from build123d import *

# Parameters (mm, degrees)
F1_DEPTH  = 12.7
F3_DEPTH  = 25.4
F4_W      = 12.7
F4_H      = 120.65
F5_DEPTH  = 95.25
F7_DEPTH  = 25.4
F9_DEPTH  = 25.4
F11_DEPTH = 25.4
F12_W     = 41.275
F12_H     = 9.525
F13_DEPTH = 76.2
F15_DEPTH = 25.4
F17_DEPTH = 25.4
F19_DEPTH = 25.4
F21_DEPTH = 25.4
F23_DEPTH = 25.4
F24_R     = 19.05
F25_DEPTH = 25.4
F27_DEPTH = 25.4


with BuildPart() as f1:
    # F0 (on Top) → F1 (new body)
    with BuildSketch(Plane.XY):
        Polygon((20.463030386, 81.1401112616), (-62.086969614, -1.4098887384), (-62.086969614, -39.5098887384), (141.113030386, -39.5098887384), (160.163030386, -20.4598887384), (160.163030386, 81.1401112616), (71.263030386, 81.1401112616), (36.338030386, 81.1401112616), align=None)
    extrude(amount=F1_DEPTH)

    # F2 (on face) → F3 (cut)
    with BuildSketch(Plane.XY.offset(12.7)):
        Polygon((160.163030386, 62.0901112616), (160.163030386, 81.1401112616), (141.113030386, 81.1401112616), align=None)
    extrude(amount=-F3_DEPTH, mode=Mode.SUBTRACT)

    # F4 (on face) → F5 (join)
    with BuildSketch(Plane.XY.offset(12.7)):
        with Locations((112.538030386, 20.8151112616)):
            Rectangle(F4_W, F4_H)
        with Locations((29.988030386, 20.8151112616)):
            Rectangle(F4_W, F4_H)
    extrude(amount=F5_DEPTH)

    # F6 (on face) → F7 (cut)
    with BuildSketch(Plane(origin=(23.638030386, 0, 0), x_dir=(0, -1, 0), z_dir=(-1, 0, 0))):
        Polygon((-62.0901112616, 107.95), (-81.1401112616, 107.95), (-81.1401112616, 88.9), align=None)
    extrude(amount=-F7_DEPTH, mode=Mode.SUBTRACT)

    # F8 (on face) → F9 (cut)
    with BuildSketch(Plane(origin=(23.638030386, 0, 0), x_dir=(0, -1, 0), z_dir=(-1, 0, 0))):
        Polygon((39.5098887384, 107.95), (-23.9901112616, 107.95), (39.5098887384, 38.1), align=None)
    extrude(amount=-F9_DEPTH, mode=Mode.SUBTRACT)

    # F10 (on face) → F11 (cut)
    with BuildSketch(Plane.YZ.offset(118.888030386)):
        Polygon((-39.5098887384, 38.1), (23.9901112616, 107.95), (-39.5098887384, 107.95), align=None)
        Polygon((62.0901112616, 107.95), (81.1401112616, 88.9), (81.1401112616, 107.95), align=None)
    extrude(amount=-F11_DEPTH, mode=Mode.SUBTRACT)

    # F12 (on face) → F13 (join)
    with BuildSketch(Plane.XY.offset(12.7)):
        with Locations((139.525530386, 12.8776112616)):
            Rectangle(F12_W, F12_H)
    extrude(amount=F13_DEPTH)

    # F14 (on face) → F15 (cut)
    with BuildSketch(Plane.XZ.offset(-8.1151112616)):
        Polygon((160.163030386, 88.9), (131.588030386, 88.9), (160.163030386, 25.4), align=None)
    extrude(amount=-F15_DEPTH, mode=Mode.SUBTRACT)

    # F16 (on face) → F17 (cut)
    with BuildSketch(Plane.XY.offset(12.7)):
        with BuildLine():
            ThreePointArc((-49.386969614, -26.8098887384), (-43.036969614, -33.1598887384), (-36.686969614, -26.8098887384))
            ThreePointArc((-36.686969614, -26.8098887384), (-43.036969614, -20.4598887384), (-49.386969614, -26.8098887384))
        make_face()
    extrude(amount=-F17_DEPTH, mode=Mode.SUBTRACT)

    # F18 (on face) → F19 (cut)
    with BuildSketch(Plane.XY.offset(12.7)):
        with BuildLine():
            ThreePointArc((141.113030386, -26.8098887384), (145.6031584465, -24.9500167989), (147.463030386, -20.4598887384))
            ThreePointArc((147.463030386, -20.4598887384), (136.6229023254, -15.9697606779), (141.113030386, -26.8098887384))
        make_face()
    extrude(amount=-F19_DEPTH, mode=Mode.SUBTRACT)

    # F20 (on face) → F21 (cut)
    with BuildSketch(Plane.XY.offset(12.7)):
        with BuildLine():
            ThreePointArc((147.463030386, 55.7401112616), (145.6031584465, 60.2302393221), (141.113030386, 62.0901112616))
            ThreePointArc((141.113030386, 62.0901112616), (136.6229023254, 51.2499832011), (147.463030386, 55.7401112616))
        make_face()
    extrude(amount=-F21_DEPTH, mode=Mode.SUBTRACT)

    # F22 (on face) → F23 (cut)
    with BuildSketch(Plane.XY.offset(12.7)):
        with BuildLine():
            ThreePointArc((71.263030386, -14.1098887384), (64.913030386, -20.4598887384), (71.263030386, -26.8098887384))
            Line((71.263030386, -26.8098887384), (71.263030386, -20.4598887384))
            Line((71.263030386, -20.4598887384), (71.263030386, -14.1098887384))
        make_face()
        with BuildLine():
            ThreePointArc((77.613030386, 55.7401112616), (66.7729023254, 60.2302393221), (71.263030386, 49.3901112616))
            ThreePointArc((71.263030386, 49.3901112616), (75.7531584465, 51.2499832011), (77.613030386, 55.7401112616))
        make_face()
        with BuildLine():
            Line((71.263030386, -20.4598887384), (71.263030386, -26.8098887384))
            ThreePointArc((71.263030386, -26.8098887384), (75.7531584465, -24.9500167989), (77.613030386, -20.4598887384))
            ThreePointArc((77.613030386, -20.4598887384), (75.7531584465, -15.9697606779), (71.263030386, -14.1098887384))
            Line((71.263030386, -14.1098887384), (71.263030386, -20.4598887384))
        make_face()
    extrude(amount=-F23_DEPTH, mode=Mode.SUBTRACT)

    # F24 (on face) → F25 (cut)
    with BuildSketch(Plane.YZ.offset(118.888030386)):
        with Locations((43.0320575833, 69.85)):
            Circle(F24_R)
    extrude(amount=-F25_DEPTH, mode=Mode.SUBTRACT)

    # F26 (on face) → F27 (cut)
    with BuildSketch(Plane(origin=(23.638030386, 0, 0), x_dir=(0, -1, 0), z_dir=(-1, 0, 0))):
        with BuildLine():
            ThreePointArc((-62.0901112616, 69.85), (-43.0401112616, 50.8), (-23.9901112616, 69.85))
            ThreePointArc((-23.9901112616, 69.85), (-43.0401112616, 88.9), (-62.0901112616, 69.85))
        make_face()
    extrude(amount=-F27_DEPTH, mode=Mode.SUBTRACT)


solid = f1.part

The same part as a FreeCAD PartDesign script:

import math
import FreeCAD as App
import Part
import Sketcher
from FreeCAD import Vector
Q = App.Units.Quantity

doc = App.newDocument("Part")
params = doc.addObject("Spreadsheet::Sheet", "Params")
for row, (alias, value) in enumerate([
    ("sketch1_width", "8 in"),
    ("sketch1_height", "4 in"),
    ("sketch1_width2", "5.5 in"),
    ("sketch1_height2", "1.5 in"),
    ("pad1_length", "0.5 in"),
    ("sketch2_width", "0.75 in"),
    ("pocket1_length", "1 in"),
    ("sketch3_width", "0.5 in"),
    ("sketch3_height", "4.75 in"),
    ("pad2_length", "3.75 in"),
    ("sketch4_width", "0.75 in"),
    ("pocket2_length", "1 in"),
    ("sketch5_width", "2.5 in"),
    ("sketch5_height", "2.75 in"),
    ("pocket3_length", "1 in"),
    ("sketch6_width", "2.5 in"),
    ("sketch6_width2", "0.75 in"),
    ("pocket4_length", "1 in"),
    ("sketch7_width", "1.625 in"),
    ("sketch7_height", "0.375 in"),
    ("pad3_length", "3 in"),
    ("sketch8_height", "2.5 in"),
    ("sketch8_width", "1.125 in"),
    ("pocket5_length", "1 in"),
    ("sketch9_diameter", "0.5 in"),
    ("pocket6_length", "1 in"),
    ("sketch10_radius", "0.25 in"),
    ("pocket7_length", "1 in"),
    ("sketch11_radius", "0.25 in"),
    ("pocket8_length", "1 in"),
    ("sketch12_radius", "0.25 in"),
    ("pocket9_length", "1 in"),
    ("sketch13_diameter", "1.5 in"),
    ("pocket10_length", "1 in"),
    ("sketch14_diameter", "1.5 in"),
    ("pocket11_length", "1 in"),
], start=1):
    params.set(f"A{row}", alias)
    params.set(f"B{row}", "=" + value)
    params.setAlias(f"B{row}", alias)

body = doc.addObject("PartDesign::Body", "Body")

# Sketch on XY plane
sketch1 = body.newObject("Sketcher::SketchObject", "Sketch")
sketch1.AttachmentSupport = (doc.getObject("XY_Plane"), [""])
sketch1.MapMode = "FlatFace"
sketch1.addGeometry([
    Part.LineSegment(Vector(20, 81, 0), Vector(-62, -1, 0)),  # 0
    Part.LineSegment(Vector(-62, -1, 0), Vector(-62, -40, 0)),  # 1
    Part.LineSegment(Vector(-62, -40, 0), Vector(141, -40, 0)),  # 2
    Part.LineSegment(Vector(141, -40, 0), Vector(160, -20, 0)),  # 3
    Part.LineSegment(Vector(160, -20, 0), Vector(160, 81, 0)),  # 4
    Part.LineSegment(Vector(160, 81, 0), Vector(20, 81, 0)),  # 5
], False)
sketch1.addConstraint([
    Sketcher.Constraint("Coincident", 0, 2, 1, 1),
    Sketcher.Constraint("Coincident", 1, 2, 2, 1),
    Sketcher.Constraint("Coincident", 2, 2, 3, 1),
    Sketcher.Constraint("Coincident", 3, 2, 4, 1),
    Sketcher.Constraint("Coincident", 4, 2, 5, 1),
    Sketcher.Constraint("Coincident", 5, 2, 0, 1),
    Sketcher.Constraint("Vertical", 1),
    Sketcher.Constraint("Horizontal", 2),
    Sketcher.Constraint("Vertical", 4),
    Sketcher.Constraint("Horizontal", 5),
    Sketcher.Constraint("Parallel", 0, 3),
    Sketcher.Constraint("DistanceX", 2, 1, 2, 2, Q("8 in")),
    Sketcher.Constraint("DistanceY", 4, 1, 4, 2, Q("4 in")),
    Sketcher.Constraint("DistanceX", 5, 2, 5, 1, Q("5.5 in")),
    Sketcher.Constraint("DistanceY", 1, 2, 1, 1, Q("1.5 in")),
    Sketcher.Constraint("DistanceX", 2, 2, 3, 2, Q("0.75 in")),
    Sketcher.Constraint("DistanceX", 0, 2, -1, 1, 62.08697),
    Sketcher.Constraint("DistanceY", 0, 2, -1, 1, 1.409889),
])
sketch1.setExpression("Constraints[11]", "Params.sketch1_width")
sketch1.setExpression("Constraints[12]", "Params.sketch1_height")
sketch1.setExpression("Constraints[13]", "Params.sketch1_width2")
sketch1.setExpression("Constraints[14]", "Params.sketch1_height2")
pad1 = body.newObject("PartDesign::Pad", "Pad")
pad1.Profile = sketch1
pad1.setExpression("Length", "Params.pad1_length")

# Sketch on XY plane
sketch2 = body.newObject("Sketcher::SketchObject", "Sketch001")
sketch2.AttachmentSupport = (doc.getObject("XY_Plane"), [""])
sketch2.MapMode = "FlatFace"
sketch2.AttachmentOffset = App.Placement(Vector(0, 0, 0.5 * 25.4), App.Rotation())
sketch2.addGeometry([
    Part.LineSegment(Vector(160, 62, 0), Vector(160, 81, 0)),
    Part.LineSegment(Vector(160, 81, 0), Vector(141, 81, 0)),
    Part.LineSegment(Vector(141, 81, 0), Vector(160, 62, 0)),
], False)
sketch2.addConstraint([
    Sketcher.Constraint("Coincident", 0, 2, 1, 1),
    Sketcher.Constraint("Coincident", 1, 2, 2, 1),
    Sketcher.Constraint("Coincident", 2, 2, 0, 1),
    Sketcher.Constraint("Vertical", 0),
    Sketcher.Constraint("Horizontal", 1),
    Sketcher.Constraint("Equal", 1, 0),
    Sketcher.Constraint("DistanceX", 1, 2, 1, 1, Q("0.75 in")),
    Sketcher.Constraint("DistanceX", -1, 1, 0, 2, 160.16303),
    Sketcher.Constraint("DistanceY", -1, 1, 0, 2, 81.140111),
])
sketch2.setExpression("Constraints[6]", "Params.sketch2_width")
pocket1 = body.newObject("PartDesign::Pocket", "Pocket")
pocket1.Profile = sketch2
pocket1.setExpression("Length", "Params.pocket1_length")

# Sketch on XY plane
sketch3 = body.newObject("Sketcher::SketchObject", "Sketch002")
sketch3.AttachmentSupport = (doc.getObject("XY_Plane"), [""])
sketch3.MapMode = "FlatFace"
sketch3.AttachmentOffset = App.Placement(Vector(0, 0, 0.5 * 25.4), App.Rotation())
sketch3.addGeometry([
    Part.LineSegment(Vector(106, 81, 0), Vector(106, -40, 0)),  # 0
    Part.LineSegment(Vector(106, -40, 0), Vector(119, -40, 0)),  # 1
    Part.LineSegment(Vector(119, -40, 0), Vector(119, 81, 0)),  # 2
    Part.LineSegment(Vector(119, 81, 0), Vector(106, 81, 0)),  # 3
    Part.LineSegment(Vector(24, 81, 0), Vector(24, -40, 0)),  # 4
    Part.LineSegment(Vector(24, -40, 0), Vector(36, -40, 0)),  # 5
    Part.LineSegment(Vector(36, -40, 0), Vector(36, 81, 0)),  # 6
    Part.LineSegment(Vector(36, 81, 0), Vector(24, 81, 0)),  # 7
], False)
sketch3.addConstraint([
    Sketcher.Constraint("Coincident", 0, 2, 1, 1),
    Sketcher.Constraint("Coincident", 1, 2, 2, 1),
    Sketcher.Constraint("Coincident", 2, 2, 3, 1),
    Sketcher.Constraint("Coincident", 3, 2, 0, 1),
    Sketcher.Constraint("Coincident", 4, 2, 5, 1),
    Sketcher.Constraint("Coincident", 5, 2, 6, 1),
    Sketcher.Constraint("Coincident", 6, 2, 7, 1),
    Sketcher.Constraint("Coincident", 7, 2, 4, 1),
    Sketcher.Constraint("Vertical", 0),
    Sketcher.Constraint("Horizontal", 1),
    Sketcher.Constraint("Vertical", 2),
    Sketcher.Constraint("Horizontal", 3),
    Sketcher.Constraint("Vertical", 4),
    Sketcher.Constraint("Horizontal", 5),
    Sketcher.Constraint("Vertical", 6),
    Sketcher.Constraint("Horizontal", 7),
    Sketcher.Constraint("Horizontal", 1, 2, 4, 2),
    Sketcher.Constraint("Horizontal", 3, 2, 6, 2),
    Sketcher.Constraint("Equal", 3, 5),
    Sketcher.Constraint("DistanceX", 1, 1, 1, 2, Q("0.5 in")),
    Sketcher.Constraint("DistanceY", 0, 2, 0, 1, Q("4.75 in")),
    Sketcher.Constraint("DistanceX", 4, 2, 0, 2, Q("3.25 in")),
    Sketcher.Constraint("DistanceX", -1, 1, 0, 2, 106.18803),
    Sketcher.Constraint("DistanceY", 0, 2, -1, 1, 39.509889),
])
sketch3.setExpression("Constraints[19]", "Params.sketch3_width")
sketch3.setExpression("Constraints[20]", "Params.sketch3_height")
pad2 = body.newObject("PartDesign::Pad", "Pad001")
pad2.Profile = sketch3
pad2.setExpression("Length", "Params.pad2_length")

# Sketch on YZ plane
sketch4 = body.newObject("Sketcher::SketchObject", "Sketch003")
sketch4.AttachmentSupport = (doc.getObject("YZ_Plane"), [""])
sketch4.MapMode = "FlatFace"
sketch4.AttachmentOffset = App.Placement(Vector(0, 0, 23.63803), App.Rotation())
sketch4.addGeometry([
    Part.LineSegment(Vector(62, 108, 0), Vector(81, 108, 0)),
    Part.LineSegment(Vector(81, 108, 0), Vector(81, 89, 0)),
    Part.LineSegment(Vector(81, 89, 0), Vector(62, 108, 0)),
], False)
sketch4.addConstraint([
    Sketcher.Constraint("Coincident", 0, 2, 1, 1),
    Sketcher.Constraint("Coincident", 1, 2, 2, 1),
    Sketcher.Constraint("Coincident", 2, 2, 0, 1),
    Sketcher.Constraint("Horizontal", 0),
    Sketcher.Constraint("Vertical", 1),
    Sketcher.Constraint("Equal", 0, 1),
    Sketcher.Constraint("DistanceX", 0, 1, 0, 2, Q("0.75 in")),
    Sketcher.Constraint("DistanceY", -1, 1, 1, 2, Q("3.5 in")),
    Sketcher.Constraint("DistanceX", -1, 1, 0, 2, 81.140111),
])
sketch4.setExpression("Constraints[6]", "Params.sketch4_width")
pocket2 = body.newObject("PartDesign::Pocket", "Pocket001")
pocket2.Profile = sketch4
pocket2.setExpression("Length", "Params.pocket2_length")
pocket2.Reversed = True

# Sketch on YZ plane
sketch5 = body.newObject("Sketcher::SketchObject", "Sketch004")
sketch5.AttachmentSupport = (doc.getObject("YZ_Plane"), [""])
sketch5.MapMode = "FlatFace"
sketch5.AttachmentOffset = App.Placement(Vector(0, 0, 23.63803), App.Rotation())
sketch5.addGeometry([
    Part.LineSegment(Vector(-40, 108, 0), Vector(24, 108, 0)),
    Part.LineSegment(Vector(24, 108, 0), Vector(-40, 38, 0)),
    Part.LineSegment(Vector(-40, 38, 0), Vector(-40, 108, 0)),
], False)
sketch5.addConstraint([
    Sketcher.Constraint("Coincident", 0, 2, 1, 1),
    Sketcher.Constraint("Coincident", 1, 2, 2, 1),
    Sketcher.Constraint("Coincident", 2, 2, 0, 1),
    Sketcher.Constraint("Horizontal", 0),
    Sketcher.Constraint("Vertical", 2),
    Sketcher.Constraint("DistanceX", 0, 1, 0, 2, Q("2.5 in")),
    Sketcher.Constraint("DistanceY", 2, 1, 2, 2, Q("2.75 in")),
    Sketcher.Constraint("DistanceY", -1, 1, 1, 2, Q("1.5 in")),
    Sketcher.Constraint("DistanceX", -1, 1, 0, 2, 23.990111),
])
sketch5.setExpression("Constraints[5]", "Params.sketch5_width")
sketch5.setExpression("Constraints[6]", "Params.sketch5_height")
pocket3 = body.newObject("PartDesign::Pocket", "Pocket002")
pocket3.Profile = sketch5
pocket3.setExpression("Length", "Params.pocket3_length")
pocket3.Reversed = True

# Sketch on YZ plane
sketch6 = body.newObject("Sketcher::SketchObject", "Sketch005")
sketch6.AttachmentSupport = (doc.getObject("YZ_Plane"), [""])
sketch6.MapMode = "FlatFace"
sketch6.AttachmentOffset = App.Placement(Vector(0, 0, 118.88803), App.Rotation())
sketch6.addGeometry([
    Part.LineSegment(Vector(-40, 38, 0), Vector(24, 108, 0)),  # 0
    Part.LineSegment(Vector(24, 108, 0), Vector(-40, 108, 0)),  # 1
    Part.LineSegment(Vector(-40, 108, 0), Vector(-40, 38, 0)),  # 2
    Part.LineSegment(Vector(62, 108, 0), Vector(81, 89, 0)),  # 3
    Part.LineSegment(Vector(81, 89, 0), Vector(81, 108, 0)),  # 4
    Part.LineSegment(Vector(81, 108, 0), Vector(62, 108, 0)),  # 5
], False)
sketch6.addConstraint([
    Sketcher.Constraint("Coincident", 0, 2, 1, 1),
    Sketcher.Constraint("Coincident", 1, 2, 2, 1),
    Sketcher.Constraint("Coincident", 2, 2, 0, 1),
    Sketcher.Constraint("Coincident", 3, 2, 4, 1),
    Sketcher.Constraint("Coincident", 4, 2, 5, 1),
    Sketcher.Constraint("Coincident", 5, 2, 3, 1),
    Sketcher.Constraint("Horizontal", 1),
    Sketcher.Constraint("Vertical", 2),
    Sketcher.Constraint("Vertical", 4),
    Sketcher.Constraint("Horizontal", 5),
    Sketcher.Constraint("Horizontal", 1, 2, 4, 2),
    Sketcher.Constraint("Equal", 5, 4),
    Sketcher.Constraint("DistanceX", 1, 2, 1, 1, Q("2.5 in")),
    Sketcher.Constraint("DistanceY", 2, 2, 3, 2, Q("2 in")),
    Sketcher.Constraint("DistanceX", 1, 2, 5, 2, Q("4 in")),
    Sketcher.Constraint("DistanceX", 5, 2, 5, 1, Q("0.75 in")),
    Sketcher.Constraint("DistanceY", -1, 1, 2, 2, Q("1.5 in")),
    Sketcher.Constraint("DistanceX", -1, 1, 0, 2, 23.990111),
])
sketch6.setExpression("Constraints[12]", "Params.sketch6_width")
sketch6.setExpression("Constraints[15]", "Params.sketch6_width2")
pocket4 = body.newObject("PartDesign::Pocket", "Pocket003")
pocket4.Profile = sketch6
pocket4.setExpression("Length", "Params.pocket4_length")

# Sketch on XY plane
sketch7 = body.newObject("Sketcher::SketchObject", "Sketch006")
sketch7.AttachmentSupport = (doc.getObject("XY_Plane"), [""])
sketch7.MapMode = "FlatFace"
sketch7.AttachmentOffset = App.Placement(Vector(0, 0, 0.5 * 25.4), App.Rotation())
sketch7.addGeometry([
    Part.LineSegment(Vector(119, 18, 0), Vector(119, 8, 0)),
    Part.LineSegment(Vector(119, 8, 0), Vector(160, 8, 0)),
    Part.LineSegment(Vector(160, 8, 0), Vector(160, 18, 0)),
    Part.LineSegment(Vector(160, 18, 0), Vector(119, 18, 0)),
], False)
sketch7.addConstraint([
    Sketcher.Constraint("Coincident", 0, 2, 1, 1),
    Sketcher.Constraint("Coincident", 1, 2, 2, 1),
    Sketcher.Constraint("Coincident", 2, 2, 3, 1),
    Sketcher.Constraint("Coincident", 3, 2, 0, 1),
    Sketcher.Constraint("Vertical", 0),
    Sketcher.Constraint("Horizontal", 1),
    Sketcher.Constraint("Vertical", 2),
    Sketcher.Constraint("Horizontal", 3),
    Sketcher.Constraint("DistanceX", 1, 1, 1, 2, Q("1.625 in")),
    Sketcher.Constraint("DistanceY", 0, 2, 0, 1, Q("0.375 in")),
    Sketcher.Constraint("DistanceX", -1, 1, 0, 2, 118.88803),
    Sketcher.Constraint("DistanceY", -1, 1, 0, 2, 8.115111),
])
sketch7.setExpression("Constraints[8]", "Params.sketch7_width")
sketch7.setExpression("Constraints[9]", "Params.sketch7_height")
pad3 = body.newObject("PartDesign::Pad", "Pad002")
pad3.Profile = sketch7
pad3.setExpression("Length", "Params.pad3_length")

# Sketch on XZ plane
sketch8 = body.newObject("Sketcher::SketchObject", "Sketch007")
sketch8.AttachmentSupport = (doc.getObject("XZ_Plane"), [""])
sketch8.MapMode = "FlatFace"
sketch8.AttachmentOffset = App.Placement(Vector(0, 0, -8.115111), App.Rotation())
sketch8.addGeometry([
    Part.LineSegment(Vector(160, 89, 0), Vector(132, 89, 0)),
    Part.LineSegment(Vector(132, 89, 0), Vector(160, 25, 0)),
    Part.LineSegment(Vector(160, 25, 0), Vector(160, 89, 0)),
], False)
sketch8.addConstraint([
    Sketcher.Constraint("Coincident", 0, 2, 1, 1),
    Sketcher.Constraint("Coincident", 1, 2, 2, 1),
    Sketcher.Constraint("Coincident", 2, 2, 0, 1),
    Sketcher.Constraint("Horizontal", 0),
    Sketcher.Constraint("Vertical", 2),
    Sketcher.Constraint("DistanceY", 2, 1, 2, 2, Q("2.5 in")),
    Sketcher.Constraint("DistanceY", -1, 1, 1, 2, Q("1 in")),
    Sketcher.Constraint("DistanceX", 0, 2, 0, 1, Q("1.125 in")),
    Sketcher.Constraint("DistanceX", -1, 1, 0, 2, 131.58803),
])
sketch8.setExpression("Constraints[5]", "Params.sketch8_height")
sketch8.setExpression("Constraints[7]", "Params.sketch8_width")
pocket5 = body.newObject("PartDesign::Pocket", "Pocket004")
pocket5.Profile = sketch8
pocket5.setExpression("Length", "Params.pocket5_length")

# Sketch on XY plane
sketch9 = body.newObject("Sketcher::SketchObject", "Sketch008")
sketch9.AttachmentSupport = (doc.getObject("XY_Plane"), [""])
sketch9.MapMode = "FlatFace"
sketch9.AttachmentOffset = App.Placement(Vector(0, 0, 0.5 * 25.4), App.Rotation())
sketch9.addGeometry(Part.Circle(Vector(-43, -27, 0), Vector(0, 0, 1), 6), False)
sketch9.addConstraint([
    Sketcher.Constraint("Diameter", 0, Q("0.5 in")),
    Sketcher.Constraint("DistanceX", 0, 3, -1, 1, 43.03697),
    Sketcher.Constraint("DistanceY", 0, 3, -1, 1, 26.809889),
])
sketch9.setExpression("Constraints[0]", "Params.sketch9_diameter")
pocket6 = body.newObject("PartDesign::Pocket", "Pocket005")
pocket6.Profile = sketch9
pocket6.setExpression("Length", "Params.pocket6_length")

# Sketch on XY plane
sketch10 = body.newObject("Sketcher::SketchObject", "Sketch009")
sketch10.AttachmentSupport = (doc.getObject("XY_Plane"), [""])
sketch10.MapMode = "FlatFace"
sketch10.AttachmentOffset = App.Placement(Vector(0, 0, 0.5 * 25.4), App.Rotation())
sketch10.addGeometry([
    Part.ArcOfCircle(Part.Circle(Vector(141, -20, 0), Vector(0, 0, 1), 6), math.radians(-90), math.radians(0)),
    Part.ArcOfCircle(Part.Circle(Vector(141, -20, 0), Vector(0, 0, 1), 6), math.radians(0), math.radians(270)),
], False)
sketch10.addConstraint([
    Sketcher.Constraint("Tangent", 0, 1, 1, 2),
    Sketcher.Constraint("Coincident", 1, 1, 0, 2),
    Sketcher.Constraint("Horizontal", 0, 3, 1, 1),
    Sketcher.Constraint("Vertical", 1, 3, 0, 1),
    Sketcher.Constraint("Radius", 0, Q("0.25 in")),
    Sketcher.Constraint("DistanceX", -1, 1, 0, 3, 141.11303),
    Sketcher.Constraint("DistanceY", 0, 3, -1, 1, 20.459889),
])
sketch10.setExpression("Constraints[4]", "Params.sketch10_radius")
pocket7 = body.newObject("PartDesign::Pocket", "Pocket006")
pocket7.Profile = sketch10
pocket7.setExpression("Length", "Params.pocket7_length")

# Sketch on XY plane
sketch11 = body.newObject("Sketcher::SketchObject", "Sketch010")
sketch11.AttachmentSupport = (doc.getObject("XY_Plane"), [""])
sketch11.MapMode = "FlatFace"
sketch11.AttachmentOffset = App.Placement(Vector(0, 0, 0.5 * 25.4), App.Rotation())
sketch11.addGeometry([
    Part.ArcOfCircle(Part.Circle(Vector(141, 56, 0), Vector(0, 0, 1), 6), math.radians(0), math.radians(90)),
    Part.ArcOfCircle(Part.Circle(Vector(141, 56, 0), Vector(0, 0, 1), 6), math.radians(90), math.radians(360)),
], False)
sketch11.addConstraint([
    Sketcher.Constraint("Tangent", 0, 1, 1, 2),
    Sketcher.Constraint("Coincident", 1, 1, 0, 2),
    Sketcher.Constraint("Horizontal", 1, 3, 0, 1),
    Sketcher.Constraint("Vertical", 0, 3, 1, 1),
    Sketcher.Constraint("Radius", 0, Q("0.25 in")),
    Sketcher.Constraint("DistanceX", -1, 1, 0, 3, 141.11303),
    Sketcher.Constraint("DistanceY", -1, 1, 0, 3, 55.740111),
])
sketch11.setExpression("Constraints[4]", "Params.sketch11_radius")
pocket8 = body.newObject("PartDesign::Pocket", "Pocket007")
pocket8.Profile = sketch11
pocket8.setExpression("Length", "Params.pocket8_length")

# Sketch on XY plane
sketch12 = body.newObject("Sketcher::SketchObject", "Sketch011")
sketch12.AttachmentSupport = (doc.getObject("XY_Plane"), [""])
sketch12.MapMode = "FlatFace"
sketch12.AttachmentOffset = App.Placement(Vector(0, 0, 0.5 * 25.4), App.Rotation())
sketch12.addGeometry([
    Part.ArcOfCircle(Part.Circle(Vector(71, -20, 0), Vector(0, 0, 1), 6), math.radians(90), math.radians(270)),  # 0
    Part.ArcOfCircle(Part.Circle(Vector(71, -20, 0), Vector(0, 0, 1), 6), math.radians(-90), math.radians(0)),  # 1
    Part.ArcOfCircle(Part.Circle(Vector(71, -20, 0), Vector(0, 0, 1), 6), math.radians(0), math.radians(90)),  # 2
    Part.ArcOfCircle(Part.Circle(Vector(71, 56, 0), Vector(0, 0, 1), 6), math.radians(0), math.radians(270)),  # 3
    Part.ArcOfCircle(Part.Circle(Vector(71, 56, 0), Vector(0, 0, 1), 6), math.radians(-90), math.radians(0)),  # 4
], False)
sketch12.addConstraint([
    Sketcher.Constraint("Tangent", 0, 2, 1, 1),
    Sketcher.Constraint("Tangent", 1, 2, 2, 1),
    Sketcher.Constraint("Tangent", 2, 2, 0, 1),
    Sketcher.Constraint("Tangent", 3, 1, 4, 2),
    Sketcher.Constraint("Coincident", 4, 1, 3, 2),
    Sketcher.Constraint("Equal", 2, 3),
    Sketcher.Constraint("Horizontal", 2, 3, 1, 2),
    Sketcher.Constraint("Horizontal", 4, 3, 3, 1),
    Sketcher.Constraint("Vertical", 2, 3, 3, 3),
    Sketcher.Constraint("Vertical", 4, 3, 0, 2),
    Sketcher.Constraint("Vertical", 0, 2, 2, 2),
    Sketcher.Constraint("Vertical", 2, 2, 4, 1),
    Sketcher.Constraint("Radius", 0, Q("0.25 in")),
    Sketcher.Constraint("DistanceY", 0, 3, 3, 3, Q("3 in")),
    Sketcher.Constraint("DistanceX", -1, 1, 0, 3, 71.26303),
    Sketcher.Constraint("DistanceY", 0, 3, -1, 1, 20.459889),
])
sketch12.setExpression("Constraints[12]", "Params.sketch12_radius")
pocket9 = body.newObject("PartDesign::Pocket", "Pocket008")
pocket9.Profile = sketch12
pocket9.setExpression("Length", "Params.pocket9_length")

# Sketch on YZ plane
sketch13 = body.newObject("Sketcher::SketchObject", "Sketch012")
sketch13.AttachmentSupport = (doc.getObject("YZ_Plane"), [""])
sketch13.MapMode = "FlatFace"
sketch13.AttachmentOffset = App.Placement(Vector(0, 0, 118.88803), App.Rotation())
sketch13.addGeometry(Part.Circle(Vector(43, 70, 0), Vector(0, 0, 1), 19), False)
sketch13.addConstraint([
    Sketcher.Constraint("Diameter", 0, Q("1.5 in")),
    Sketcher.Constraint("DistanceY", -1, 1, 0, 3, Q("2.75 in")),
    Sketcher.Constraint("DistanceX", -1, 1, 0, 3, 43.032058),
])
sketch13.setExpression("Constraints[0]", "Params.sketch13_diameter")
pocket10 = body.newObject("PartDesign::Pocket", "Pocket009")
pocket10.Profile = sketch13
pocket10.setExpression("Length", "Params.pocket10_length")

# Sketch on YZ plane
sketch14 = body.newObject("Sketcher::SketchObject", "Sketch013")
sketch14.AttachmentSupport = (doc.getObject("YZ_Plane"), [""])
sketch14.MapMode = "FlatFace"
sketch14.AttachmentOffset = App.Placement(Vector(0, 0, 23.63803), App.Rotation())
sketch14.addGeometry(Part.Circle(Vector(43, 70, 0), Vector(0, 0, 1), 19), False)
sketch14.addConstraint([
    Sketcher.Constraint("Diameter", 0, Q("1.5 in")),
    Sketcher.Constraint("DistanceY", -1, 1, 0, 3, Q("2.75 in")),
    Sketcher.Constraint("DistanceX", -1, 1, 0, 3, 43.040111),
])
sketch14.setExpression("Constraints[0]", "Params.sketch14_diameter")
pocket11 = body.newObject("PartDesign::Pocket", "Pocket010")
pocket11.Profile = sketch14
pocket11.setExpression("Length", "Params.pocket11_length")
pocket11.Reversed = True

doc.recompute()
